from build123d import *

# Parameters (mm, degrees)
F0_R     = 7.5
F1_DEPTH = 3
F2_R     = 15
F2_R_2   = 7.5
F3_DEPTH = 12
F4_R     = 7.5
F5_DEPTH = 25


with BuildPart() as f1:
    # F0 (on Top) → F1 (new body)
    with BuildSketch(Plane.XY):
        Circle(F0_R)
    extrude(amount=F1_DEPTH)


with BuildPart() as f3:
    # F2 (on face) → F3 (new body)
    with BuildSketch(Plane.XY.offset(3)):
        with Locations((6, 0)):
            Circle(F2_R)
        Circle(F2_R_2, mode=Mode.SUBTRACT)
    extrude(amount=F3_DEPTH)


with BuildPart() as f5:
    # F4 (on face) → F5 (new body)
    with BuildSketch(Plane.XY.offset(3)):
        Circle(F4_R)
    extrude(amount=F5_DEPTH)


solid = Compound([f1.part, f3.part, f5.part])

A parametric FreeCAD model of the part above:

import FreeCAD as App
import Part
import Sketcher
from FreeCAD import Vector

doc = App.newDocument("Part")
body = doc.addObject("PartDesign::Body", "Body")

# Sketch on XY plane
sketch1 = body.newObject("Sketcher::SketchObject", "Sketch")
sketch1.AttachmentSupport = (doc.getObject("XY_Plane"), [""])
sketch1.MapMode = "FlatFace"
sketch1.addGeometry(Part.Circle(Vector(0, 0, 0), Vector(0, 0, 1), 7.5), False)
sketch1.addConstraint(Sketcher.Constraint("Coincident", 0, 3, -1, 1))
sketch1.addConstraint(Sketcher.Constraint("Diameter", 0, 15.0))
pad1 = body.newObject("PartDesign::Pad", "Pad")
pad1.Profile = sketch1
pad1.Length = 3
body2 = doc.addObject("PartDesign::Body", "Body001")

# Sketch on XY plane
sketch2 = body2.newObject("Sketcher::SketchObject", "Sketch001")
sketch2.AttachmentSupport = (doc.getObject("XY_Plane001"), [""])
sketch2.MapMode = "FlatFace"
sketch2.AttachmentOffset = App.Placement(Vector(0, 0, 3), App.Rotation())
sketch2.addGeometry(Part.Circle(Vector(6, 0, 0), Vector(0, 0, 1), 15), False)
sketch2.addGeometry(Part.Circle(Vector(0, 0, 0), Vector(0, 0, 1), 7.5), False)
sketch2.addConstraint(Sketcher.Constraint("Coincident", 1, 3, -1, 1))
sketch2.addConstraint(Sketcher.Constraint("PointOnObject", 0, 3, -1))
sketch2.addConstraint(Sketcher.Constraint("Diameter", 0, 30.0))
sketch2.addConstraint(Sketcher.Constraint("Diameter", 1, 15.0))
sketch2.addConstraint(Sketcher.Constraint("DistanceX", -1, 1, 0, 3, 6.0))
pad2 = body2.newObject("PartDesign::Pad", "Pad001")
pad2.Profile = sketch2
pad2.Length = 12
body3 = doc.addObject("PartDesign::Body", "Body002")

# Sketch on XY plane
sketch3 = body3.newObject("Sketcher::SketchObject", "Sketch002")
sketch3.AttachmentSupport = (doc.getObject("XY_Plane002"), [""])
sketch3.MapMode = "FlatFace"
sketch3.AttachmentOffset = App.Placement(Vector(0, 0, 3), App.Rotation())
sketch3.addGeometry(Part.Circle(Vector(0, 0, 0), Vector(0, 0, 1), 7.5), False)
sketch3.addConstraint(Sketcher.Constraint("Coincident", 0, 3, -1, 1))
sketch3.addConstraint(Sketcher.Constraint("Diameter", 0, 15.0))
pad3 = body3.newObject("PartDesign::Pad", "Pad002")
pad3.Profile = sketch3
pad3.Length = 25

doc.recompute()
